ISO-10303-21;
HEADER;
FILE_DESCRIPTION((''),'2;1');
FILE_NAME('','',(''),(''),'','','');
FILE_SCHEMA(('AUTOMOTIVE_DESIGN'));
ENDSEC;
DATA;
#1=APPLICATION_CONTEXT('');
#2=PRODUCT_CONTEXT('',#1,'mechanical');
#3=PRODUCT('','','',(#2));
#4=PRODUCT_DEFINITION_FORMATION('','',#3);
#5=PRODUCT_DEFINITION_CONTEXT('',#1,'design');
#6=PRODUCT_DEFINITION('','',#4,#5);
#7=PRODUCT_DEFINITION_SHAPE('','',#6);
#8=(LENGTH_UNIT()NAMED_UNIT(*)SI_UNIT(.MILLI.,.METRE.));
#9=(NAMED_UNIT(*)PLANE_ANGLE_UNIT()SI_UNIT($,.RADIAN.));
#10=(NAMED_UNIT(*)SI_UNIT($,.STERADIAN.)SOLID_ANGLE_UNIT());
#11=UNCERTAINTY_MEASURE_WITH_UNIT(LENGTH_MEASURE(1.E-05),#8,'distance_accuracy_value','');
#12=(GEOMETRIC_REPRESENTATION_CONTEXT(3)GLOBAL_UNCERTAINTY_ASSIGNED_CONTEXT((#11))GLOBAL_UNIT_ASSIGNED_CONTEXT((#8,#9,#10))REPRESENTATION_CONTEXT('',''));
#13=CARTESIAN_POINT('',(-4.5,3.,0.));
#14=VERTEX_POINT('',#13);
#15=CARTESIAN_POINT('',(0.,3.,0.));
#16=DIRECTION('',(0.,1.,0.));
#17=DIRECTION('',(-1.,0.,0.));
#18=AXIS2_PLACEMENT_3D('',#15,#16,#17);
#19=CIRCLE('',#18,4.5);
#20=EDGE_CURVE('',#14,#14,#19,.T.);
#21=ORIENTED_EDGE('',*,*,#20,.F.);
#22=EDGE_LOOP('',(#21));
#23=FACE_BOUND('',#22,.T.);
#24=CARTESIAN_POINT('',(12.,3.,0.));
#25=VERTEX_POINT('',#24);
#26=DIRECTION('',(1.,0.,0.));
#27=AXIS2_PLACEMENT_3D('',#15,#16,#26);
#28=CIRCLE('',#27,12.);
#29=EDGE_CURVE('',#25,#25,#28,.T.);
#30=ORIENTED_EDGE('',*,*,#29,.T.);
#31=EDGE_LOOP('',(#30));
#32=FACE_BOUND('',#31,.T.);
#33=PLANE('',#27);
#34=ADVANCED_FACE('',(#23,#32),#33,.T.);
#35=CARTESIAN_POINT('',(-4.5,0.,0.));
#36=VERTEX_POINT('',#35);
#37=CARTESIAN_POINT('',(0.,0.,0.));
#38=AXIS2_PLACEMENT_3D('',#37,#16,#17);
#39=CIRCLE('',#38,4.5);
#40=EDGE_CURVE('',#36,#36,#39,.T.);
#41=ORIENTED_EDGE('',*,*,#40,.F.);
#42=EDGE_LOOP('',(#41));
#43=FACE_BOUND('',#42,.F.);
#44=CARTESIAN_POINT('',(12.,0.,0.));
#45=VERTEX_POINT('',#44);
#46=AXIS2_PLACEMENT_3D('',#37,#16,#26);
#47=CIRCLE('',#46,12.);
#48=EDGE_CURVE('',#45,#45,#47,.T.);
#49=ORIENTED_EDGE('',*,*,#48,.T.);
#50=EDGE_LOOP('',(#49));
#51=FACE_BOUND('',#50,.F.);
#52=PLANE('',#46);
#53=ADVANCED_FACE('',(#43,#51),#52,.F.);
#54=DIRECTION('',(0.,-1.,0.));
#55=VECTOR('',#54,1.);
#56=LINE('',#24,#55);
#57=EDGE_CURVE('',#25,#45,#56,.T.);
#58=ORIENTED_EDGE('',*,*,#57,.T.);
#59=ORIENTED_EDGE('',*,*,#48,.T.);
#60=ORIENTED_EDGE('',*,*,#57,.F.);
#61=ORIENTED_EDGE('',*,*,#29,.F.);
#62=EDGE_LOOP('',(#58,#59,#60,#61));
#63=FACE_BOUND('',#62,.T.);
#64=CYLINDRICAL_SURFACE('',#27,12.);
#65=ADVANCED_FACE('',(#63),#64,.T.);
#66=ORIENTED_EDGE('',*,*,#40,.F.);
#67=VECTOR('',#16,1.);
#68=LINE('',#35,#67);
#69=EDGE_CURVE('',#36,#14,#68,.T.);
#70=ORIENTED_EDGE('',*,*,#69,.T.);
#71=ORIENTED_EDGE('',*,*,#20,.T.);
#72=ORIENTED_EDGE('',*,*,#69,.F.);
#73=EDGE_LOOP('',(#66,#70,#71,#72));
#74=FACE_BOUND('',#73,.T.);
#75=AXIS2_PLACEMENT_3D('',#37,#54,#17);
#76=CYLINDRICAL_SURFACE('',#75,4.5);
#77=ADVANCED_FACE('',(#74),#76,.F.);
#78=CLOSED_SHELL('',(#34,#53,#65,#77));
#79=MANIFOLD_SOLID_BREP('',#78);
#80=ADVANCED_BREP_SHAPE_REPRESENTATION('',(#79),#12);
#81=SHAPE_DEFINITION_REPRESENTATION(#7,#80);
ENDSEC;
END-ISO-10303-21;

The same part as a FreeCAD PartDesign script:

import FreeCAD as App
import Part
import Sketcher
Q = App.Units.Quantity

doc = App.newDocument("Part")
body = doc.addObject("PartDesign::Body", "Body")

sketch1 = body.newObject("Sketcher::SketchObject", "Sketch")
sketch1.AttachmentSupport = (doc.getObject("XZ_Plane"), [""])
sketch1.MapMode = "FlatFace"
sketch1.addGeometry(Part.Circle(App.Vector(0, 0, 0), App.Vector(0, 0, 1), 10), False)
sketch1.addGeometry(Part.Circle(App.Vector(0, 0, 0), App.Vector(0, 0, 1), 4.5), False)
sketch1.addConstraint(Sketcher.Constraint("Coincident", 0, 3, -1, 1))
sketch1.addConstraint(Sketcher.Constraint("Coincident", 1, 3, -1, 1))
sketch1.addConstraint(Sketcher.Constraint("Diameter", 0, Q("20 mm")))
sketch1.addConstraint(Sketcher.Constraint("Diameter", 1, Q("9 mm")))
pad1 = body.newObject("PartDesign::Pad", "Pad")
pad1.Profile = sketch1
pad1.Length = 3
pad1.Reversed = True

sketch2 = body.newObject("Sketcher::SketchObject", "Sketch001")
sketch2.AttachmentSupport = (doc.getObject("XZ_Plane"), [""])
sketch2.MapMode = "FlatFace"
sketch2.AttachmentOffset = App.Placement(App.Vector(0, 0, -3), App.Rotation())
sketch2.addGeometry(Part.Circle(App.Vector(0, 0, 0), App.Vector(0, 0, 1), 10.5), False)
sketch2.addGeometry(Part.Circle(App.Vector(0, 0, 0), App.Vector(0, 0, 1), 10), False)
sketch2.addConstraint(Sketcher.Constraint("Coincident", 0, 3, -1, 1))
sketch2.addConstraint(Sketcher.Constraint("Coincident", 1, 3, -1, 1))
sketch2.addConstraint(Sketcher.Constraint("Diameter", 0, Q("21 mm")))
sketch2.addConstraint(Sketcher.Constraint("Diameter", 1, Q("20 mm")))
pad2 = body.newObject("PartDesign::Pad", "Pad001")
pad2.Profile = sketch2
pad2.Length = 3

sketch3 = body.newObject("Sketcher::SketchObject", "Sketch002")
sketch3.AttachmentSupport = (doc.getObject("XZ_Plane"), [""])
sketch3.MapMode = "FlatFace"
sketch3.AttachmentOffset = App.Placement(App.Vector(0, 0, -3), App.Rotation())
sketch3.addGeometry(Part.Circle(App.Vector(0, 0, 0), App.Vector(0, 0, 1), 12), False)
sketch3.addGeometry(Part.Circle(App.Vector(0, 0, 0), App.Vector(0, 0, 1), 10.5), False)
sketch3.addConstraint(Sketcher.Constraint("Coincident", 0, 3, -1, 1))
sketch3.addConstraint(Sketcher.Constraint("Coincident", 1, 3, -1, 1))
sketch3.addConstraint(Sketcher.Constraint("Diameter", 0, Q("24 mm")))
sketch3.addConstraint(Sketcher.Constraint("Diameter", 1, Q("21 mm")))
pad3 = body.newObject("PartDesign::Pad", "Pad002")
pad3.Profile = sketch3
pad3.Length = 3

doc.recompute()
